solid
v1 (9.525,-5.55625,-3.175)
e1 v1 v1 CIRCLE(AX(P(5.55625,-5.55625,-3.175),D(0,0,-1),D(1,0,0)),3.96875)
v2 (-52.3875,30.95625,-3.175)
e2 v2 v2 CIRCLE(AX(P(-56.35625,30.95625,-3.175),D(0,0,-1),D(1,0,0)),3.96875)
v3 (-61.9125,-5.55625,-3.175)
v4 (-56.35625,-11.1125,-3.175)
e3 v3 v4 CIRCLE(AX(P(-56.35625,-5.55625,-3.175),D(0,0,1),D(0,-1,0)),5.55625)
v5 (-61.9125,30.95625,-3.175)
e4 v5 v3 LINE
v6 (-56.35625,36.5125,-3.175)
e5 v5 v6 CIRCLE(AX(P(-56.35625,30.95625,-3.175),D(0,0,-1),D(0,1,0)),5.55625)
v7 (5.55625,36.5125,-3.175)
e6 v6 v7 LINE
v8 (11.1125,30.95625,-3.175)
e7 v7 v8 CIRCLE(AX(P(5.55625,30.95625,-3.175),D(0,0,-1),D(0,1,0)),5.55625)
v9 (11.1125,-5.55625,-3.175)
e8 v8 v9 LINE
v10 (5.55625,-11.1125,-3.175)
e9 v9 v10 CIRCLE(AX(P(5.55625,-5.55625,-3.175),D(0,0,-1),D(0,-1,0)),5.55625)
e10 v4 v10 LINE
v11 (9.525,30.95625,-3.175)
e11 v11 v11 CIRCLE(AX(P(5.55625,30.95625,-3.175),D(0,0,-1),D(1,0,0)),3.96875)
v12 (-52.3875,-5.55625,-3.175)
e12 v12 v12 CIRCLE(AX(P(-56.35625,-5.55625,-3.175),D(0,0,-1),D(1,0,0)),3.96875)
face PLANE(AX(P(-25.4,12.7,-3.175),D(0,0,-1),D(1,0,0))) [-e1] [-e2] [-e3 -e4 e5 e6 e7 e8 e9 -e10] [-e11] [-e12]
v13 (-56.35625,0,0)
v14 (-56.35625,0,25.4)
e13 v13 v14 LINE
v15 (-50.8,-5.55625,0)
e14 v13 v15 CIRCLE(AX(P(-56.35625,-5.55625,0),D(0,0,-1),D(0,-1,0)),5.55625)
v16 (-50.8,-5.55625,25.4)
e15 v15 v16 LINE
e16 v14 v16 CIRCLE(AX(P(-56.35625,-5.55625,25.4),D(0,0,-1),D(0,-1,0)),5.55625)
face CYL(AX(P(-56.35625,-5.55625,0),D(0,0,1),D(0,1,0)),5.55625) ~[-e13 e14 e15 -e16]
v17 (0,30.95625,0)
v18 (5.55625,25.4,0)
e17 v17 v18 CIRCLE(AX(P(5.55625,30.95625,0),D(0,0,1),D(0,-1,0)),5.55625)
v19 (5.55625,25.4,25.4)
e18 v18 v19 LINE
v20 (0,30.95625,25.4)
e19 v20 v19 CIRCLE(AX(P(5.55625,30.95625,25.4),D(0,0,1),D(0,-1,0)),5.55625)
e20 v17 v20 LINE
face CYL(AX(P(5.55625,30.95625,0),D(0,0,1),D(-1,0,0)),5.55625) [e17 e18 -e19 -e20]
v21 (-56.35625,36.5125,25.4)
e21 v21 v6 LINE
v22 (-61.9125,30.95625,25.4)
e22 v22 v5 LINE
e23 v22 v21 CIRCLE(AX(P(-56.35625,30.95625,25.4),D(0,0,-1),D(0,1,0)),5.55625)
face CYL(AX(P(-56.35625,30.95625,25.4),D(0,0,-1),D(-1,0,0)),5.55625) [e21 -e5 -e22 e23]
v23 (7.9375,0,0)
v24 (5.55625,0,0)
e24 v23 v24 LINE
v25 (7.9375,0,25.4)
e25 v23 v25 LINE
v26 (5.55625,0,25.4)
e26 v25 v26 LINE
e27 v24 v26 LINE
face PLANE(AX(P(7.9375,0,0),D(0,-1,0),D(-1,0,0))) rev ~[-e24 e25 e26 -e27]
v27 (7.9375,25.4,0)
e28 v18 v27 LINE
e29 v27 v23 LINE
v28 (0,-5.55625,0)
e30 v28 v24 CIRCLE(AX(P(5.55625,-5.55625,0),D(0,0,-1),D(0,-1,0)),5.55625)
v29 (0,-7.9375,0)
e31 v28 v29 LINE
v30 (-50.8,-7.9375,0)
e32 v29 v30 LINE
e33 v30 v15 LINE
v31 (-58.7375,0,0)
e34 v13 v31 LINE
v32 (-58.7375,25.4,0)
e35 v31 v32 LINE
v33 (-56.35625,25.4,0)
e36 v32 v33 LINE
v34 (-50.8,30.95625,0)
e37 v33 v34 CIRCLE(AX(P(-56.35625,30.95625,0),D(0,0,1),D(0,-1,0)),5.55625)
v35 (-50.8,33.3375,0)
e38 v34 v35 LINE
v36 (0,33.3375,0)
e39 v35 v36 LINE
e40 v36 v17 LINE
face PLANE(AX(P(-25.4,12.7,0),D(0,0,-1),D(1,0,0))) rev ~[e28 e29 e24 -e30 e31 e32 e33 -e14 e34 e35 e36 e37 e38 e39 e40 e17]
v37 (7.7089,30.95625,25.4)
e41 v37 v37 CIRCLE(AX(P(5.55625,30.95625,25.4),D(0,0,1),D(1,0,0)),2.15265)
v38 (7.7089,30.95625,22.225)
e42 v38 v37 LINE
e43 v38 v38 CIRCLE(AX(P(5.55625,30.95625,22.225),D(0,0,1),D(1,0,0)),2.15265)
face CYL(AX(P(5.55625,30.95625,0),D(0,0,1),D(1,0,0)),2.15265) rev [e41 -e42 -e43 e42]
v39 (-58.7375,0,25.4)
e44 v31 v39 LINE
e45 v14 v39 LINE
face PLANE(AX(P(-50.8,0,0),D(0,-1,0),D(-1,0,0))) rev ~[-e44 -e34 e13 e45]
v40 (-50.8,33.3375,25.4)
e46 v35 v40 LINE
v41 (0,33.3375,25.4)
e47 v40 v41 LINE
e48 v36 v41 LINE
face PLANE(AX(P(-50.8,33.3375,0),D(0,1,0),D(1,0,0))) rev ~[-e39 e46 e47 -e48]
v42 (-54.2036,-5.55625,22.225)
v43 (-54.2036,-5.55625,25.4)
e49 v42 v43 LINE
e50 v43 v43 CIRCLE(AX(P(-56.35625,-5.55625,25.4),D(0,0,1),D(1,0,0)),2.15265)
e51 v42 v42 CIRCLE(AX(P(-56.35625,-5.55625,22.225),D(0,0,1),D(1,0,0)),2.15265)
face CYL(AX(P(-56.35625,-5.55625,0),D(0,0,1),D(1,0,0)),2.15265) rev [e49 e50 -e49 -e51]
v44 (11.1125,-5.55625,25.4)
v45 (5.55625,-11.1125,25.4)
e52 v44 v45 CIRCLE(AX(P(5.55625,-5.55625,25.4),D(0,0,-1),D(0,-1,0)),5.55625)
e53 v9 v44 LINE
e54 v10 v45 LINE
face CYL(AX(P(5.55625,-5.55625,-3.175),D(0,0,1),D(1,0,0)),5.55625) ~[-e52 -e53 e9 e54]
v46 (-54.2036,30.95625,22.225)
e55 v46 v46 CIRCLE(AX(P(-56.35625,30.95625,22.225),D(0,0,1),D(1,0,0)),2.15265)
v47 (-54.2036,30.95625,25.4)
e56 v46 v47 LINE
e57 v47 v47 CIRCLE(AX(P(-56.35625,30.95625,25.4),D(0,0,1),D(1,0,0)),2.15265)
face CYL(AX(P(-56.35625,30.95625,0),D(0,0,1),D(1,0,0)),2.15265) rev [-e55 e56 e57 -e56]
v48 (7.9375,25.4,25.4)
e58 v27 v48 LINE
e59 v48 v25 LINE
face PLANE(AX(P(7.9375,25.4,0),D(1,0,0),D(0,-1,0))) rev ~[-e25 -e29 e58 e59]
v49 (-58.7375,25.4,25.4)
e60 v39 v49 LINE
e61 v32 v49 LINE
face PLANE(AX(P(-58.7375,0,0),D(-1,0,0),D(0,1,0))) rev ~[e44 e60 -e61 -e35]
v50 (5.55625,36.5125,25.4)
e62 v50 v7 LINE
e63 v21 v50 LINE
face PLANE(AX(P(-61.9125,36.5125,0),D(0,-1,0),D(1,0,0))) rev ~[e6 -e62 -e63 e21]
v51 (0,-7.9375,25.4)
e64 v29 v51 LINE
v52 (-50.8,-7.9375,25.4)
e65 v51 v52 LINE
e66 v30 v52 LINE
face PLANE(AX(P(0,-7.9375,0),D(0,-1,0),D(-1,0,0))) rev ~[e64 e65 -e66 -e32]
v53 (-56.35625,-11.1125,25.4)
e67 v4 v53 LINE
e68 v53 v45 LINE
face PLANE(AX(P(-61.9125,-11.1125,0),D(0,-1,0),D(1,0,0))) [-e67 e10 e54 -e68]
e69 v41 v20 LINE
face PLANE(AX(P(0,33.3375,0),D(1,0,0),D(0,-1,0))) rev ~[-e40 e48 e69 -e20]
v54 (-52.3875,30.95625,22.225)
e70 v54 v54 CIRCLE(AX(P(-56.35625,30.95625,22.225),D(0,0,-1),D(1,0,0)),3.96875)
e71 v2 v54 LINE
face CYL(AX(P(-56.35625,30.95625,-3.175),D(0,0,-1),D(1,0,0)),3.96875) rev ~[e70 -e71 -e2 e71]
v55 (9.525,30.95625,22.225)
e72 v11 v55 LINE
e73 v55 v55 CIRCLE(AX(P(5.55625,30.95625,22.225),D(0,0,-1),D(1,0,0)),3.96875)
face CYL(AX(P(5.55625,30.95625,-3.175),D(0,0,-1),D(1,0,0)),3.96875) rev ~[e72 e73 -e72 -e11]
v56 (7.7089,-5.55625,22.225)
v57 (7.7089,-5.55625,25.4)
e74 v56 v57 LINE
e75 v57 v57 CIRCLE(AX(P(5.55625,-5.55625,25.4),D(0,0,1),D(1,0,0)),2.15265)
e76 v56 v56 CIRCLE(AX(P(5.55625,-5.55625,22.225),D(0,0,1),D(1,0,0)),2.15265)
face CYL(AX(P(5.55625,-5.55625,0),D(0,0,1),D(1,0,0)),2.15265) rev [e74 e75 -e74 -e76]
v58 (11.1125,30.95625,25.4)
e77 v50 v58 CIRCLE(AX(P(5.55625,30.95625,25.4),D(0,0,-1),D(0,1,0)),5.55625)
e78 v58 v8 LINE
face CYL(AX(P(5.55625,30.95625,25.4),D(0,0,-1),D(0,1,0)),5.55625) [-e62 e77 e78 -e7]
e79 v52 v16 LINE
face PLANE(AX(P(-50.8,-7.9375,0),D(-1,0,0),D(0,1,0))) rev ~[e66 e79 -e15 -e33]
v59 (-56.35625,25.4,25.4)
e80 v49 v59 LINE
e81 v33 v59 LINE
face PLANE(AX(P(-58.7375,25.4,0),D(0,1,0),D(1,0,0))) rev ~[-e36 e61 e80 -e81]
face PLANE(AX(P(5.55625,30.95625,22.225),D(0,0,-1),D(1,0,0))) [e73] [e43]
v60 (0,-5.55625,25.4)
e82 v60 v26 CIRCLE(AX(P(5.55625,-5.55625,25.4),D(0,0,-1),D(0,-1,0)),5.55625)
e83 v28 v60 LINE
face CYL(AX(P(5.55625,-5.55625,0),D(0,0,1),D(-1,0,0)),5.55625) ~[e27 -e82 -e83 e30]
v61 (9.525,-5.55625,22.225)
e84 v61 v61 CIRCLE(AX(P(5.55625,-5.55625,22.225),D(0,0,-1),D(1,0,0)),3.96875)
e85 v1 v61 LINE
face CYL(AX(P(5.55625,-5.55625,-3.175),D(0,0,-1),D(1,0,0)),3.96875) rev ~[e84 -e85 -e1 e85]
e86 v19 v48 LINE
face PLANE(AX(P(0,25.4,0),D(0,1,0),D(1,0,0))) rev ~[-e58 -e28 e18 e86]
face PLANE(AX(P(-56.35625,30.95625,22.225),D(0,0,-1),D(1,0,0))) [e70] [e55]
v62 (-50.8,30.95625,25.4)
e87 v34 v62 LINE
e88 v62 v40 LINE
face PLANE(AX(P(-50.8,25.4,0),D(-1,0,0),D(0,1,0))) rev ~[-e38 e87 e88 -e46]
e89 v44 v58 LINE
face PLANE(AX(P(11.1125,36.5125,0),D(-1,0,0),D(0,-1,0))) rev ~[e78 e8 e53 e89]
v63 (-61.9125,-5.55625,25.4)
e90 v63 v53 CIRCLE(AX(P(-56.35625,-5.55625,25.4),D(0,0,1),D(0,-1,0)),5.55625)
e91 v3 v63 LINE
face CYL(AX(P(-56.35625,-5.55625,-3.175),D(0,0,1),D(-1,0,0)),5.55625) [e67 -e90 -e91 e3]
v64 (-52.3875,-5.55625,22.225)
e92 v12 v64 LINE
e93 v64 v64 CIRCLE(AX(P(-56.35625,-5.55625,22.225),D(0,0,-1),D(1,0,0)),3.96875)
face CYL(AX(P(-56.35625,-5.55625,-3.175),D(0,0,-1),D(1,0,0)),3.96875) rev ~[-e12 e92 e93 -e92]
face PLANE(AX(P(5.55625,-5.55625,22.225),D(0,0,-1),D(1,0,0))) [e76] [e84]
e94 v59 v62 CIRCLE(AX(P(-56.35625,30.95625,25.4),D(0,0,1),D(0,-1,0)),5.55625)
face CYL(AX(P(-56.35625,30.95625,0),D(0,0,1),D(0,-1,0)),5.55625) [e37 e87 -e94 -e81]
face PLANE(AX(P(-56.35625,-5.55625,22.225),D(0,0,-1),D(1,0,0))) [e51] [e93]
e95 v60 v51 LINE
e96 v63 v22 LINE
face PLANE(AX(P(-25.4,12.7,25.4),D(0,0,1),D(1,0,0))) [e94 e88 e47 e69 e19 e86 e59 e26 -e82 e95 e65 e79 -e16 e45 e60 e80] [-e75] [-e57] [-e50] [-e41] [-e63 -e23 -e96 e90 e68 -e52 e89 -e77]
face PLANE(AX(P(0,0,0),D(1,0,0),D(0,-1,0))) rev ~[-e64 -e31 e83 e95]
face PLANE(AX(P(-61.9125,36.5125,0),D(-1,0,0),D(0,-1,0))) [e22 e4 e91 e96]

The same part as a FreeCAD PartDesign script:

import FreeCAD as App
import Part
import Sketcher

V = App.Vector
Q = App.Units.Quantity


def edges_at(feature, points):
    """Names of the edges that pass closest to the given points."""
    edges = feature.Shape.Edges
    near = lambda p: min(range(len(edges)), key=lambda i: edges[i].distToShape(Part.Vertex(*p))[0])
    return sorted({f"Edge{near(p) + 1}" for p in points})


def add_polygon(sketch, points):
    """Adds a closed chain of lines whose ends are joined by coincident constraints."""
    first, n = sketch.GeometryCount, len(points)
    for a, b in zip(points, points[1:] + points[:1]):
        sketch.addGeometry(Part.LineSegment(App.Vector(*a, 0), App.Vector(*b, 0)), False)
    for i in range(n):
        sketch.addConstraint(Sketcher.Constraint("Coincident", first + i, 2, first + (i + 1) % n, 1))

doc = App.newDocument("Part")
params = doc.addObject("Spreadsheet::Sheet", "Params")
for row, (alias, value) in enumerate([
    ("sketch1_width", "2 in"),
    ("sketch1_height", "1 in"),
    ("sketch1_width2", "2.875 in"),
    ("sketch1_width3", "0.3125 in"),
    ("sketch1_height2", "1.875 in"),
    ("pad1_length", "1 in"),
    ("sketch2_width", "2.875 in"),
    ("sketch2_height", "1.875 in"),
    ("pad2_length", "0.125 in"),
    ("fillet_radius", "0.21875 in"),
    ("sketch3_diameter", "0.3125 in"),
    ("pocket1_length", "1 in"),
], start=1):
    params.set(f"A{row}", alias)
    params.set(f"B{row}", "=" + value)
    params.setAlias(f"B{row}", alias)

body = doc.addObject("PartDesign::Body", "Body")

sketch1 = body.newObject("Sketcher::SketchObject", "Sketch")
sketch1.AttachmentSupport = (doc.getObject("XY_Plane"), [""])
sketch1.MapMode = "FlatFace"
add_polygon(sketch1, [(-61.9, 36.5), (-61.9, -11.1), (11.1, -11.1), (11.1, 36.5)])
sketch1.addGeometry(Part.Circle(V(-56.4, -5.6, 0), V(0, 0, 1), 2.2), False)
sketch1.addGeometry(Part.Circle(V(5.6, -5.6, 0), V(0, 0, 1), 2.2), False)
sketch1.addGeometry(Part.Circle(V(-56.4, 31, 0), V(0, 0, 1), 2.2), False)
add_polygon(sketch1, [(7.9, 25.4), (7.9, 0), (0, 0), (0, -7.9), (-50.8, -7.9), (-50.8, 0), (-58.7, 0), (-58.7, 25.4), (-50.8, 25.4), (-50.8, 33.3), (0, 33.3), (0, 25.4)])
sketch1.addGeometry(Part.Circle(V(5.6, 31, 0), V(0, 0, 1), 2.2), False)
sketch1.addConstraint(Sketcher.Constraint("Vertical", 0))
sketch1.addConstraint(Sketcher.Constraint("Horizontal", 1))
sketch1.addConstraint(Sketcher.Constraint("Vertical", 2))
sketch1.addConstraint(Sketcher.Constraint("Horizontal", 3))
sketch1.addConstraint(Sketcher.Constraint("Vertical", 7))
sketch1.addConstraint(Sketcher.Constraint("Horizontal", 8))
sketch1.addConstraint(Sketcher.Constraint("Vertical", 9))
sketch1.addConstraint(Sketcher.Constraint("Horizontal", 10))
sketch1.addConstraint(Sketcher.Constraint("Vertical", 11))
sketch1.addConstraint(Sketcher.Constraint("Horizontal", 12))
sketch1.addConstraint(Sketcher.Constraint("Vertical", 13))
sketch1.addConstraint(Sketcher.Constraint("Horizontal", 14))
sketch1.addConstraint(Sketcher.Constraint("Vertical", 15))
sketch1.addConstraint(Sketcher.Constraint("Horizontal", 16))
sketch1.addConstraint(Sketcher.Constraint("Vertical", 17))
sketch1.addConstraint(Sketcher.Constraint("Horizontal", 18))
sketch1.addConstraint(Sketcher.Constraint("Coincident", 8, 2, -1, 1))
sketch1.addConstraint(Sketcher.Constraint("Equal", 4, 5))
sketch1.addConstraint(Sketcher.Constraint("Equal", 5, 6))
sketch1.addConstraint(Sketcher.Constraint("Equal", 6, 19))
sketch1.addConstraint(Sketcher.Constraint("PointOnObject", 11, 2, -1))
sketch1.addConstraint(Sketcher.Constraint("PointOnObject", 16, 2, -2))
sketch1.addConstraint(Sketcher.Constraint("Horizontal", 4, 3, 5, 3))
sketch1.addConstraint(Sketcher.Constraint("Horizontal", 6, 3, 19, 3))
sketch1.addConstraint(Sketcher.Constraint("Horizontal", 14, 2, 17, 2))
sketch1.addConstraint(Sketcher.Constraint("Vertical", 4, 3, 6, 3))
sketch1.addConstraint(Sketcher.Constraint("Vertical", 5, 3, 19, 3))
sketch1.addConstraint(Sketcher.Constraint("Vertical", 11, 2, 14, 2))
sketch1.addConstraint(Sketcher.Constraint("Equal", 8, 12))
sketch1.addConstraint(Sketcher.Constraint("Equal", 18, 9))
sketch1.addConstraint(Sketcher.Constraint("Equal", 11, 15))
sketch1.addConstraint(Sketcher.Constraint("DistanceX", 10, 2, 10, 1, Q("2 in")))
sketch1.addConstraint(Sketcher.Constraint("DistanceY", 7, 2, 7, 1, Q("1 in")))
sketch1.addConstraint(Sketcher.Constraint("Diameter", 4, Q("0.1695 in")))
sketch1.addConstraint(Sketcher.Constraint("DistanceX", 1, 1, 1, 2, Q("2.875 in")))
sketch1.addConstraint(Sketcher.Constraint("DistanceX", 8, 2, 8, 1, Q("0.3125 in")))
sketch1.addConstraint(Sketcher.Constraint("DistanceY", 0, 2, 0, 1, Q("1.875 in")))
sketch1.addConstraint(Sketcher.Constraint("DistanceY", 10, 2, 3, 2, Q("1.75 in")))
sketch1.addConstraint(Sketcher.Constraint("DistanceX", 4, 3, -1, 1, Q("2.21875 in")))
sketch1.addConstraint(Sketcher.Constraint("DistanceY", 4, 3, -1, 1, Q("0.21875 in")))
sketch1.addConstraint(Sketcher.Constraint("DistanceX", -1, 1, 5, 3, Q("0.21875 in")))
sketch1.addConstraint(Sketcher.Constraint("DistanceY", -1, 1, 6, 3, Q("1.21875 in")))
sketch1.addConstraint(Sketcher.Constraint("DistanceX", 0, 2, -1, 1, Q("2.4375 in")))
sketch1.setExpression("Constraints[47]", "Params.sketch1_width")
sketch1.setExpression("Constraints[48]", "Params.sketch1_height")
sketch1.setExpression("Constraints[50]", "Params.sketch1_width2")
sketch1.setExpression("Constraints[51]", "Params.sketch1_width3")
sketch1.setExpression("Constraints[52]", "Params.sketch1_height2")
pad1 = body.newObject("PartDesign::Pad", "Pad")
pad1.Profile = sketch1
pad1.setExpression("Length", "Params.pad1_length")

sketch2 = body.newObject("Sketcher::SketchObject", "Sketch001")
sketch2.AttachmentSupport = (doc.getObject("XY_Plane"), [""])
sketch2.MapMode = "FlatFace"
add_polygon(sketch2, [(-61.9, -11.1), (-61.9, 36.5), (11.1, 36.5), (11.1, -11.1)])
sketch2.addGeometry(Part.Circle(V(-56.4, 31, 0), V(0, 0, 1), 2.2), False)
sketch2.addGeometry(Part.Circle(V(5.6, 31, 0), V(0, 0, 1), 2.2), False)
sketch2.addGeometry(Part.Circle(V(-56.4, -5.6, 0), V(0, 0, 1), 2.2), False)
sketch2.addGeometry(Part.Circle(V(5.6, -5.6, 0), V(0, 0, 1), 2.2), False)
sketch2.addConstraint(Sketcher.Constraint("Vertical", 0))
sketch2.addConstraint(Sketcher.Constraint("Horizontal", 1))
sketch2.addConstraint(Sketcher.Constraint("Vertical", 2))
sketch2.addConstraint(Sketcher.Constraint("Horizontal", 3))
sketch2.addConstraint(Sketcher.Constraint("Equal", 4, 5))
sketch2.addConstraint(Sketcher.Constraint("Equal", 5, 6))
sketch2.addConstraint(Sketcher.Constraint("Equal", 6, 7))
sketch2.addConstraint(Sketcher.Constraint("Horizontal", 4, 3, 5, 3))
sketch2.addConstraint(Sketcher.Constraint("Horizontal", 6, 3, 7, 3))
sketch2.addConstraint(Sketcher.Constraint("Vertical", 4, 3, 6, 3))
sketch2.addConstraint(Sketcher.Constraint("Vertical", 5, 3, 7, 3))
sketch2.addConstraint(Sketcher.Constraint("Diameter", 4, Q("0.1695 in")))
sketch2.addConstraint(Sketcher.Constraint("DistanceX", 1, 1, 1, 2, Q("2.875 in")))
sketch2.addConstraint(Sketcher.Constraint("DistanceY", 0, 1, 0, 2, Q("1.875 in")))
sketch2.addConstraint(Sketcher.Constraint("DistanceX", 4, 3, -1, 1, Q("2.21875 in")))
sketch2.addConstraint(Sketcher.Constraint("DistanceY", -1, 1, 4, 3, Q("1.21875 in")))
sketch2.addConstraint(Sketcher.Constraint("DistanceX", -1, 1, 5, 3, Q("0.21875 in")))
sketch2.addConstraint(Sketcher.Constraint("DistanceY", 6, 3, -1, 1, Q("0.21875 in")))
sketch2.addConstraint(Sketcher.Constraint("DistanceX", 0, 2, -1, 1, Q("2.4375 in")))
sketch2.addConstraint(Sketcher.Constraint("DistanceY", -1, 1, 0, 2, Q("1.4375 in")))
sketch2.setExpression("Constraints[16]", "Params.sketch2_width")
sketch2.setExpression("Constraints[17]", "Params.sketch2_height")
pad2 = body.newObject("PartDesign::Pad", "Pad001")
pad2.Profile = sketch2
pad2.setExpression("Length", "Params.pad2_length")
pad2.Reversed = True
doc.recompute()

fillet = body.newObject("PartDesign::Fillet", "Fillet")
fillet.Base = (pad2, edges_at(pad2, [
    (-50.8, 25.4, 12.7),
    (-61.913, 36.513, 11.113),
    (0, 25.4, 12.7),
    (11.113, 36.513, 11.113),
    (0, 0, 12.7),
    (11.113, -11.113, 11.113),
    (-50.8, 0, 12.7),
    (-61.913, -11.113, 11.113),
]))
fillet.setExpression("Radius", "Params.fillet_radius")

sketch3 = body.newObject("Sketcher::SketchObject", "Sketch002")
sketch3.AttachmentSupport = (doc.getObject("XY_Plane"), [""])
sketch3.MapMode = "FlatFace"
sketch3.AttachmentOffset = App.Placement(V(0, 0, -0.125 * 25.4), App.Rotation())
sketch3.addGeometry(Part.Circle(V(-56.4, -5.6, 0), V(0, 0, 1), 4), False)
sketch3.addGeometry(Part.Circle(V(5.6, -5.6, 0), V(0, 0, 1), 4), False)
sketch3.addGeometry(Part.Circle(V(5.6, 31, 0), V(0, 0, 1), 4), False)
sketch3.addGeometry(Part.Circle(V(-56.4, 31, 0), V(0, 0, 1), 4), False)
sketch3.addConstraint(Sketcher.Constraint("Equal", 0, 1))
sketch3.addConstraint(Sketcher.Constraint("Equal", 1, 2))
sketch3.addConstraint(Sketcher.Constraint("Equal", 2, 3))
sketch3.addConstraint(Sketcher.Constraint("Horizontal", 0, 3, 1, 3))
sketch3.addConstraint(Sketcher.Constraint("Horizontal", 2, 3, 3, 3))
sketch3.addConstraint(Sketcher.Constraint("Vertical", 1, 3, 2, 3))
sketch3.addConstraint(Sketcher.Constraint("Vertical", 0, 3, 3, 3))
sketch3.addConstraint(Sketcher.Constraint("Diameter", 0, Q("0.3125 in")))
sketch3.addConstraint(Sketcher.Constraint("DistanceX", 0, 3, -1, 1, Q("2.21875 in")))
sketch3.addConstraint(Sketcher.Constraint("DistanceY", 0, 3, -1, 1, Q("0.21875 in")))
sketch3.addConstraint(Sketcher.Constraint("DistanceX", -1, 1, 1, 3, Q("0.21875 in")))
sketch3.addConstraint(Sketcher.Constraint("DistanceY", -1, 1, 2, 3, Q("1.21875 in")))
sketch3.setExpression("Constraints[7]", "Params.sketch3_diameter")
pocket1 = body.newObject("PartDesign::Pocket", "Pocket")
pocket1.Profile = sketch3
pocket1.setExpression("Length", "Params.pocket1_length")
pocket1.Reversed = True

doc.recompute()
